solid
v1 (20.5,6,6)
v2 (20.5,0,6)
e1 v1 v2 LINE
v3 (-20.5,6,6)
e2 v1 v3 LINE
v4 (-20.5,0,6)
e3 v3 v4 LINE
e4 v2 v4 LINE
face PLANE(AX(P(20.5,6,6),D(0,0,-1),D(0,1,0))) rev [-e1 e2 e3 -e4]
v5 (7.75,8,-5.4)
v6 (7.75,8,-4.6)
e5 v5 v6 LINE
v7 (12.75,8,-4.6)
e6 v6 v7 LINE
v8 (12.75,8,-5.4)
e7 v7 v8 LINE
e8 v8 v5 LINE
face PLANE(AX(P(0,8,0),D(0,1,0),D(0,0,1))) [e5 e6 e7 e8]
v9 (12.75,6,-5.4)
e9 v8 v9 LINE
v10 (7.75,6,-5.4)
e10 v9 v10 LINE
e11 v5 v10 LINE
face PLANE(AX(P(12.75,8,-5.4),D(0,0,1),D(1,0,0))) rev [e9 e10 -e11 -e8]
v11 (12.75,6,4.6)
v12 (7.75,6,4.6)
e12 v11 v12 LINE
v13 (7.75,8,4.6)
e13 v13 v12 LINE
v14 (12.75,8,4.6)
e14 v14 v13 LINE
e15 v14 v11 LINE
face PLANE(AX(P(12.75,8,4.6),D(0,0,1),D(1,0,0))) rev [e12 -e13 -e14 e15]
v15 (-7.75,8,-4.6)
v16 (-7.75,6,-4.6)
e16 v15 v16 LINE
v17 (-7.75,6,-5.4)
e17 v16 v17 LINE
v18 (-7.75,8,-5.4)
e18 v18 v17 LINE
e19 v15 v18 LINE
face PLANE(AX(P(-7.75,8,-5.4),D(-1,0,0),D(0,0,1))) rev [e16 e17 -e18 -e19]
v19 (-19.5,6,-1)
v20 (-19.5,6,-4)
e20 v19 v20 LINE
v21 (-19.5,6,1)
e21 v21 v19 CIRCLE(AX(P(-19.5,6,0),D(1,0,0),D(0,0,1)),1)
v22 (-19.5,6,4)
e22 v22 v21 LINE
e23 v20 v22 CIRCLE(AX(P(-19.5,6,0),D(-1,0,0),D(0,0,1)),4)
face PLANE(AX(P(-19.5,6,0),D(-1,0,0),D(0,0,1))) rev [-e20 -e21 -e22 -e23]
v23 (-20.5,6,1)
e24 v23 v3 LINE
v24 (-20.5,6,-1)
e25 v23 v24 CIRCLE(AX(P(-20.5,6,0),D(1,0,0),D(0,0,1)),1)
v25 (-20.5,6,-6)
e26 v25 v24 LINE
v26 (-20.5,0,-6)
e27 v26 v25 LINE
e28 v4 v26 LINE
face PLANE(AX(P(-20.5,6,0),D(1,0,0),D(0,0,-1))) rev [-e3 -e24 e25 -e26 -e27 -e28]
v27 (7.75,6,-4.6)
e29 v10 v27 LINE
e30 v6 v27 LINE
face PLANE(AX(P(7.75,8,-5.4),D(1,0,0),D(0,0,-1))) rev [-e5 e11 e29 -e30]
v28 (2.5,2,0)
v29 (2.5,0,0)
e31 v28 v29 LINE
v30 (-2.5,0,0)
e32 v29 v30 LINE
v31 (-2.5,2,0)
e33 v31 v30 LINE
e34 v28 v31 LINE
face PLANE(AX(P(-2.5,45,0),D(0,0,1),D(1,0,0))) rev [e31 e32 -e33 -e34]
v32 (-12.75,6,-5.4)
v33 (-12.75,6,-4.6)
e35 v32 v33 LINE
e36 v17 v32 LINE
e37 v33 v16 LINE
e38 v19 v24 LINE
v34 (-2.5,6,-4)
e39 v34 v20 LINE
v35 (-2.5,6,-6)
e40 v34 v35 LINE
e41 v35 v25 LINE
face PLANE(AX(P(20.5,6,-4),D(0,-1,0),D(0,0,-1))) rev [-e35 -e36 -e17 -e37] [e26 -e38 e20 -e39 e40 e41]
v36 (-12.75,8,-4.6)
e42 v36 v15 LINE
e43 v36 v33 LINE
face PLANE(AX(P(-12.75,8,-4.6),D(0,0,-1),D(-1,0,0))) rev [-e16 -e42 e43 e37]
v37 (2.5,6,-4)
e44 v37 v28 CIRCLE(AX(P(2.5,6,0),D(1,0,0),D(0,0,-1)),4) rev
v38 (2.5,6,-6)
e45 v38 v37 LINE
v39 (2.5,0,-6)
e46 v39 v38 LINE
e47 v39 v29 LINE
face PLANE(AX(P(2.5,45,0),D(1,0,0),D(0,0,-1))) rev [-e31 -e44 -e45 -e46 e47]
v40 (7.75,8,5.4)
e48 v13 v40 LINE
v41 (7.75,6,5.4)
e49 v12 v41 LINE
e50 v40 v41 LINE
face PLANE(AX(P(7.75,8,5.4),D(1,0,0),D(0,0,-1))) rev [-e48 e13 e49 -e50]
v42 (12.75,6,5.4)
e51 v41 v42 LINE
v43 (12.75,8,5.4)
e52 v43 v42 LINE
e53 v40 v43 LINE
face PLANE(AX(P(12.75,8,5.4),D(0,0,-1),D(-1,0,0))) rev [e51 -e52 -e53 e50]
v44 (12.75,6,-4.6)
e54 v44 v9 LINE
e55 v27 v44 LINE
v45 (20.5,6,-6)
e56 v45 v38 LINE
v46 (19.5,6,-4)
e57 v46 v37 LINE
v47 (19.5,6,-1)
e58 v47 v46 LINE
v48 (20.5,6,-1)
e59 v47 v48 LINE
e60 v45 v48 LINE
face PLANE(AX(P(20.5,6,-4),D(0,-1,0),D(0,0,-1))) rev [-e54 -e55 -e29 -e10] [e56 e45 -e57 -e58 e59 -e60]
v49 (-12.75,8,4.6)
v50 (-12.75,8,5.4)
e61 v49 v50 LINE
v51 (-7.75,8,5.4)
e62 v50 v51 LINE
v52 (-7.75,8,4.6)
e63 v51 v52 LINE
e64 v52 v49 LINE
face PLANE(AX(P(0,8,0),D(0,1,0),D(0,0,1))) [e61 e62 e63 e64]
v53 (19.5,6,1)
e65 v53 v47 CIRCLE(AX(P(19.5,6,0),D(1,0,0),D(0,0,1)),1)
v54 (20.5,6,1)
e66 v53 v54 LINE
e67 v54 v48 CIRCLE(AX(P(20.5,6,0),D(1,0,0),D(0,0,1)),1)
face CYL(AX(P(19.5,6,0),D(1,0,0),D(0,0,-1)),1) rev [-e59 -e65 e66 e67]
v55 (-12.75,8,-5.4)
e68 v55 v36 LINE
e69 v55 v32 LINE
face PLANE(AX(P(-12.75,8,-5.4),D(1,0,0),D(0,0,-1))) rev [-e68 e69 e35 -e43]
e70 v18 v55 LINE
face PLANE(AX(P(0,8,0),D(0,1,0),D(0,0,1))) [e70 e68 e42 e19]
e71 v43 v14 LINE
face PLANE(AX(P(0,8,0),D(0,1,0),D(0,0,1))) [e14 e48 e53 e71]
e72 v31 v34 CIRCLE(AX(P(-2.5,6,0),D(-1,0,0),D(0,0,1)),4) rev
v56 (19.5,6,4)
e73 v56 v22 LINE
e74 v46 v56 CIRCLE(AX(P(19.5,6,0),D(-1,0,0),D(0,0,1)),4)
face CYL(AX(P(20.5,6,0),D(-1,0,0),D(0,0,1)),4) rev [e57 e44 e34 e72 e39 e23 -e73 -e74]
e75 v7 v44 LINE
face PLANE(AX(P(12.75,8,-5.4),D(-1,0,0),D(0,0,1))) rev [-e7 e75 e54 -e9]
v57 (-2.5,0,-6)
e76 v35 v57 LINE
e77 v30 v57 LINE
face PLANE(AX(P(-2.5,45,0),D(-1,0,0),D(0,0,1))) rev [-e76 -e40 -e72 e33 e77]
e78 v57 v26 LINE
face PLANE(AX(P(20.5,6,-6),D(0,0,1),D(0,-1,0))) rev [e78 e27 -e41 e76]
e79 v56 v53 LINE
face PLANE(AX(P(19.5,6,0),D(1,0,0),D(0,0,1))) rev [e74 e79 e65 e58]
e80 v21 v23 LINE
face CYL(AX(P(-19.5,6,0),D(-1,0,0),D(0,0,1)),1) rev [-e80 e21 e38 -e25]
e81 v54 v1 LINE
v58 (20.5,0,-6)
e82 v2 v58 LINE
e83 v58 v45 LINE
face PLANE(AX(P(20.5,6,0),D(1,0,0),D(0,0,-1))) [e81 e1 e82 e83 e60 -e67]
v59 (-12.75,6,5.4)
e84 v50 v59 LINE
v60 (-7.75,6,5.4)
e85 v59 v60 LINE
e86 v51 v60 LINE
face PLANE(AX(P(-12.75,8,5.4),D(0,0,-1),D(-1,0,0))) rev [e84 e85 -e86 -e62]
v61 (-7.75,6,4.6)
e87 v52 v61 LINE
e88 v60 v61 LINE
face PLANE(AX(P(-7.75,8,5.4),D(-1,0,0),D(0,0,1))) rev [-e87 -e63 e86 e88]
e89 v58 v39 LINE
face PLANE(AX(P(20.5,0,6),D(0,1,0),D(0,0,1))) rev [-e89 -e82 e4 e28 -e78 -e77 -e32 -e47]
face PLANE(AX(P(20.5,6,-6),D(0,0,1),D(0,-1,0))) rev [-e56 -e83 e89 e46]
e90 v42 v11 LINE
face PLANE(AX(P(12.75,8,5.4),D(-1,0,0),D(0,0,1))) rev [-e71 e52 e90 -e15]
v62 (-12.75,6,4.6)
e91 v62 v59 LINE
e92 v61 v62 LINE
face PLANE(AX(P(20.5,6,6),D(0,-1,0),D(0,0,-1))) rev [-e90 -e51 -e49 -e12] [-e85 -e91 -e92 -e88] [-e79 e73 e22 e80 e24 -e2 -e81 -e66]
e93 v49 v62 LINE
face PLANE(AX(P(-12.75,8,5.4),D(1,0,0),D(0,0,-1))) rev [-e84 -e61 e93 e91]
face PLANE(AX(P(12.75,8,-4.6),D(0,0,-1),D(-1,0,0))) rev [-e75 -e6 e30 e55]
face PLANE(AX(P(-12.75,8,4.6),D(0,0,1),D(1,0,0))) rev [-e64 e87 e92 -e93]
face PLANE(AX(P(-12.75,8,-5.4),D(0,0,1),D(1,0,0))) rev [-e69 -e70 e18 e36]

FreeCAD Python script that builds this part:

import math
import FreeCAD as App
import Part
import Sketcher
from FreeCAD import Vector


def add_polygon(sketch, points):
    """Adds a closed chain of lines whose ends are joined by coincident constraints."""
    first, n = sketch.GeometryCount, len(points)
    for a, b in zip(points, points[1:] + points[:1]):
        sketch.addGeometry(Part.LineSegment(App.Vector(*a, 0), App.Vector(*b, 0)), False)
    for i in range(n):
        sketch.addConstraint(Sketcher.Constraint("Coincident", first + i, 2, first + (i + 1) % n, 1))

doc = App.newDocument("Part")
body = doc.addObject("PartDesign::Body", "Body")

# Sketch on YZ plane
sketch1 = body.newObject("Sketcher::SketchObject", "Sketch")
sketch1.AttachmentSupport = (doc.getObject("YZ_Plane"), [""])
sketch1.MapMode = "FlatFace"
sketch1.addGeometry(Part.LineSegment(Vector(6, 4, 0), Vector(6, 6, 0)), False)
sketch1.addGeometry(Part.LineSegment(Vector(6, 6, 0), Vector(0, 6, 0)), False)
sketch1.addGeometry(Part.LineSegment(Vector(0, 6, 0), Vector(0, -6, 0)), False)
sketch1.addGeometry(Part.LineSegment(Vector(0, -6, 0), Vector(6, -6, 0)), False)
sketch1.addGeometry(Part.LineSegment(Vector(6, -6, 0), Vector(6, -4, 0)), False)
sketch1.addGeometry(Part.ArcOfCircle(Part.Circle(Vector(6, 0, 0), Vector(0, 0, 1), 4), math.radians(90), math.radians(270)), False)
sketch1.addConstraint(Sketcher.Constraint("Coincident", 0, 2, 1, 1))
sketch1.addConstraint(Sketcher.Constraint("Coincident", 1, 2, 2, 1))
sketch1.addConstraint(Sketcher.Constraint("Coincident", 2, 2, 3, 1))
sketch1.addConstraint(Sketcher.Constraint("Coincident", 3, 2, 4, 1))
sketch1.addConstraint(Sketcher.Constraint("Coincident", 4, 2, 5, 2))
sketch1.addConstraint(Sketcher.Constraint("Coincident", 5, 1, 0, 1))
sketch1.addConstraint(Sketcher.Constraint("Vertical", 0))
sketch1.addConstraint(Sketcher.Constraint("Horizontal", 1))
sketch1.addConstraint(Sketcher.Constraint("Vertical", 2))
sketch1.addConstraint(Sketcher.Constraint("Horizontal", 3))
sketch1.addConstraint(Sketcher.Constraint("Vertical", 4))
sketch1.addConstraint(Sketcher.Constraint("Symmetric", 1, 2, 2, 2, -1, 1))
sketch1.addConstraint(Sketcher.Constraint("Symmetric", 4, 2, 5, 1, -1))
sketch1.addConstraint(Sketcher.Constraint("Vertical", 5, 3, 0, 2))
sketch1.addConstraint(Sketcher.Constraint("Radius", 5, 4.0))
sketch1.addConstraint(Sketcher.Constraint("DistanceX", 1, 2, 1, 1, 6.0))
sketch1.addConstraint(Sketcher.Constraint("DistanceY", 0, 1, 0, 2, 2.0))
pad1 = body.newObject("PartDesign::Pad", "Pad")
pad1.Profile = sketch1
pad1.Length = 41
pad1.Midplane = True

# Sketch on XZ plane
sketch2 = body.newObject("Sketcher::SketchObject", "Sketch001")
sketch2.AttachmentSupport = (doc.getObject("XZ_Plane"), [""])
sketch2.MapMode = "FlatFace"
add_polygon(sketch2, [(-2, 0), (-2, -9), (2, -9), (2, 0)])  # lines 0-3
sketch2.addConstraint(Sketcher.Constraint("Vertical", 0))
sketch2.addConstraint(Sketcher.Constraint("Horizontal", 1))
sketch2.addConstraint(Sketcher.Constraint("Vertical", 2))
sketch2.addConstraint(Sketcher.Constraint("Horizontal", 3))
sketch2.addConstraint(Sketcher.Constraint("Symmetric", 2, 2, 3, 2, -1, 1))
sketch2.addConstraint(Sketcher.Constraint("DistanceX", 1, 1, 1, 2, 5.0))
sketch2.addConstraint(Sketcher.Constraint("DistanceY", 0, 2, 0, 1, 8.500742))
pocket1 = body.newObject("PartDesign::Pocket", "Pocket")
pocket1.Profile = sketch2
pocket1.Length = 45

# Sketch on YZ plane
sketch3 = body.newObject("Sketcher::SketchObject", "Sketch002")
sketch3.AttachmentSupport = (doc.getObject("YZ_Plane"), [""])
sketch3.MapMode = "FlatFace"
sketch3.AttachmentOffset = App.Placement(Vector(0, 0, -20.5), App.Rotation())
sketch3.addGeometry(Part.LineSegment(Vector(6, -1, 0), Vector(6, -4, 0)), False)
sketch3.addGeometry(Part.ArcOfCircle(Part.Circle(Vector(6, 0, 0), Vector(0, 0, 1), 4), math.radians(90), math.radians(270)), False)
sketch3.addGeometry(Part.LineSegment(Vector(6, 4, 0), Vector(6, 1, 0)), False)
sketch3.addGeometry(Part.ArcOfCircle(Part.Circle(Vector(6, 0, 0), Vector(0, 0, 1), 1), math.radians(90), math.radians(270)), False)
sketch3.addConstraint(Sketcher.Constraint("Coincident", 0, 2, 1, 2))
sketch3.addConstraint(Sketcher.Constraint("Coincident", 1, 1, 2, 1))
sketch3.addConstraint(Sketcher.Constraint("Coincident", 2, 2, 3, 1))
sketch3.addConstraint(Sketcher.Constraint("Coincident", 3, 2, 0, 1))
sketch3.addConstraint(Sketcher.Constraint("Vertical", 0))
sketch3.addConstraint(Sketcher.Constraint("Vertical", 2))
sketch3.addConstraint(Sketcher.Constraint("Coincident", 3, 3, 1, 3))
sketch3.addConstraint(Sketcher.Constraint("Symmetric", 0, 2, 1, 1, -1))
sketch3.addConstraint(Sketcher.Constraint("Vertical", 3, 3, 0, 2))
sketch3.addConstraint(Sketcher.Constraint("Radius", 1, 4.0))
sketch3.addConstraint(Sketcher.Constraint("Radius", 3, 1.0))
sketch3.addConstraint(Sketcher.Constraint("DistanceX", -1, 1, 1, 3, 6.0))
pad2 = body.newObject("PartDesign::Pad", "Pad001")
pad2.Profile = sketch3
pad2.Length = 1
doc.recompute()

mirrored = body.newObject("PartDesign::Mirrored", "Mirrored")
mirrored.Originals = [pad2]
mirrored.MirrorPlane = (doc.getObject("YZ_Plane"), [""])
body.Tip = mirrored

# Sketch on XZ plane
sketch4 = body.newObject("Sketcher::SketchObject", "Sketch003")
sketch4.AttachmentSupport = (doc.getObject("XZ_Plane"), [""])
sketch4.MapMode = "FlatFace"
sketch4.AttachmentOffset = App.Placement(Vector(0, 0, -6), App.Rotation())
add_polygon(sketch4, [(-12.8, -5.4), (-12.8, -4.6), (-7.8, -4.6), (-7.8, -5.4)])  # lines 0-3
add_polygon(sketch4, [(-12.8, 4.6), (-12.8, 5.4), (-7.8, 5.4), (-7.8, 4.6)])  # lines 4-7
add_polygon(sketch4, [(7.8, 4.6), (7.8, 5.4), (12.8, 5.4), (12.8, 4.6)])  # lines 8-11
add_polygon(sketch4, [(7.8, -5.4), (7.8, -4.6), (12.8, -4.6), (12.8, -5.4)])  # lines 12-15
sketch4.addConstraint(Sketcher.Constraint("Vertical", 0))
sketch4.addConstraint(Sketcher.Constraint("Horizontal", 1))
sketch4.addConstraint(Sketcher.Constraint("Vertical", 2))
sketch4.addConstraint(Sketcher.Constraint("Horizontal", 3))
sketch4.addConstraint(Sketcher.Constraint("Vertical", 4))
sketch4.addConstraint(Sketcher.Constraint("Horizontal", 5))
sketch4.addConstraint(Sketcher.Constraint("Vertical", 6))
sketch4.addConstraint(Sketcher.Constraint("Horizontal", 7))
sketch4.addConstraint(Sketcher.Constraint("Vertical", 8))
sketch4.addConstraint(Sketcher.Constraint("Horizontal", 9))
sketch4.addConstraint(Sketcher.Constraint("Vertical", 10))
sketch4.addConstraint(Sketcher.Constraint("Horizontal", 11))
sketch4.addConstraint(Sketcher.Constraint("Vertical", 12))
sketch4.addConstraint(Sketcher.Constraint("Horizontal", 13))
sketch4.addConstraint(Sketcher.Constraint("Vertical", 14))
sketch4.addConstraint(Sketcher.Constraint("Horizontal", 15))
sketch4.addConstraint(Sketcher.Constraint("Symmetric", 2, 2, 8, 2, -1, 1))
sketch4.addConstraint(Sketcher.Constraint("Symmetric", 0, 2, 10, 2, -1, 1))
sketch4.addConstraint(Sketcher.Constraint("Symmetric", 6, 2, 12, 2, -1, 1))
sketch4.addConstraint(Sketcher.Constraint("Symmetric", 4, 2, 14, 2, -1, 1))
sketch4.addConstraint(Sketcher.Constraint("Symmetric", 5, 2, 8, 2, -2))
sketch4.addConstraint(Sketcher.Constraint("Symmetric", 7, 2, 10, 2, -2))
sketch4.addConstraint(Sketcher.Constraint("DistanceX", 1, 1, 1, 2, 5.0))
sketch4.addConstraint(Sketcher.Constraint("DistanceY", 0, 1, 0, 2, 0.8))
sketch4.addConstraint(Sketcher.Constraint("DistanceY", 0, 2, 4, 2, 10.0))
sketch4.addConstraint(Sketcher.Constraint("DistanceX", 5, 2, 8, 2, 15.5))
pad3 = body.newObject("PartDesign::Pad", "Pad002")
pad3.Profile = sketch4
pad3.Length = 2
pad3.Reversed = True

doc.recompute()
